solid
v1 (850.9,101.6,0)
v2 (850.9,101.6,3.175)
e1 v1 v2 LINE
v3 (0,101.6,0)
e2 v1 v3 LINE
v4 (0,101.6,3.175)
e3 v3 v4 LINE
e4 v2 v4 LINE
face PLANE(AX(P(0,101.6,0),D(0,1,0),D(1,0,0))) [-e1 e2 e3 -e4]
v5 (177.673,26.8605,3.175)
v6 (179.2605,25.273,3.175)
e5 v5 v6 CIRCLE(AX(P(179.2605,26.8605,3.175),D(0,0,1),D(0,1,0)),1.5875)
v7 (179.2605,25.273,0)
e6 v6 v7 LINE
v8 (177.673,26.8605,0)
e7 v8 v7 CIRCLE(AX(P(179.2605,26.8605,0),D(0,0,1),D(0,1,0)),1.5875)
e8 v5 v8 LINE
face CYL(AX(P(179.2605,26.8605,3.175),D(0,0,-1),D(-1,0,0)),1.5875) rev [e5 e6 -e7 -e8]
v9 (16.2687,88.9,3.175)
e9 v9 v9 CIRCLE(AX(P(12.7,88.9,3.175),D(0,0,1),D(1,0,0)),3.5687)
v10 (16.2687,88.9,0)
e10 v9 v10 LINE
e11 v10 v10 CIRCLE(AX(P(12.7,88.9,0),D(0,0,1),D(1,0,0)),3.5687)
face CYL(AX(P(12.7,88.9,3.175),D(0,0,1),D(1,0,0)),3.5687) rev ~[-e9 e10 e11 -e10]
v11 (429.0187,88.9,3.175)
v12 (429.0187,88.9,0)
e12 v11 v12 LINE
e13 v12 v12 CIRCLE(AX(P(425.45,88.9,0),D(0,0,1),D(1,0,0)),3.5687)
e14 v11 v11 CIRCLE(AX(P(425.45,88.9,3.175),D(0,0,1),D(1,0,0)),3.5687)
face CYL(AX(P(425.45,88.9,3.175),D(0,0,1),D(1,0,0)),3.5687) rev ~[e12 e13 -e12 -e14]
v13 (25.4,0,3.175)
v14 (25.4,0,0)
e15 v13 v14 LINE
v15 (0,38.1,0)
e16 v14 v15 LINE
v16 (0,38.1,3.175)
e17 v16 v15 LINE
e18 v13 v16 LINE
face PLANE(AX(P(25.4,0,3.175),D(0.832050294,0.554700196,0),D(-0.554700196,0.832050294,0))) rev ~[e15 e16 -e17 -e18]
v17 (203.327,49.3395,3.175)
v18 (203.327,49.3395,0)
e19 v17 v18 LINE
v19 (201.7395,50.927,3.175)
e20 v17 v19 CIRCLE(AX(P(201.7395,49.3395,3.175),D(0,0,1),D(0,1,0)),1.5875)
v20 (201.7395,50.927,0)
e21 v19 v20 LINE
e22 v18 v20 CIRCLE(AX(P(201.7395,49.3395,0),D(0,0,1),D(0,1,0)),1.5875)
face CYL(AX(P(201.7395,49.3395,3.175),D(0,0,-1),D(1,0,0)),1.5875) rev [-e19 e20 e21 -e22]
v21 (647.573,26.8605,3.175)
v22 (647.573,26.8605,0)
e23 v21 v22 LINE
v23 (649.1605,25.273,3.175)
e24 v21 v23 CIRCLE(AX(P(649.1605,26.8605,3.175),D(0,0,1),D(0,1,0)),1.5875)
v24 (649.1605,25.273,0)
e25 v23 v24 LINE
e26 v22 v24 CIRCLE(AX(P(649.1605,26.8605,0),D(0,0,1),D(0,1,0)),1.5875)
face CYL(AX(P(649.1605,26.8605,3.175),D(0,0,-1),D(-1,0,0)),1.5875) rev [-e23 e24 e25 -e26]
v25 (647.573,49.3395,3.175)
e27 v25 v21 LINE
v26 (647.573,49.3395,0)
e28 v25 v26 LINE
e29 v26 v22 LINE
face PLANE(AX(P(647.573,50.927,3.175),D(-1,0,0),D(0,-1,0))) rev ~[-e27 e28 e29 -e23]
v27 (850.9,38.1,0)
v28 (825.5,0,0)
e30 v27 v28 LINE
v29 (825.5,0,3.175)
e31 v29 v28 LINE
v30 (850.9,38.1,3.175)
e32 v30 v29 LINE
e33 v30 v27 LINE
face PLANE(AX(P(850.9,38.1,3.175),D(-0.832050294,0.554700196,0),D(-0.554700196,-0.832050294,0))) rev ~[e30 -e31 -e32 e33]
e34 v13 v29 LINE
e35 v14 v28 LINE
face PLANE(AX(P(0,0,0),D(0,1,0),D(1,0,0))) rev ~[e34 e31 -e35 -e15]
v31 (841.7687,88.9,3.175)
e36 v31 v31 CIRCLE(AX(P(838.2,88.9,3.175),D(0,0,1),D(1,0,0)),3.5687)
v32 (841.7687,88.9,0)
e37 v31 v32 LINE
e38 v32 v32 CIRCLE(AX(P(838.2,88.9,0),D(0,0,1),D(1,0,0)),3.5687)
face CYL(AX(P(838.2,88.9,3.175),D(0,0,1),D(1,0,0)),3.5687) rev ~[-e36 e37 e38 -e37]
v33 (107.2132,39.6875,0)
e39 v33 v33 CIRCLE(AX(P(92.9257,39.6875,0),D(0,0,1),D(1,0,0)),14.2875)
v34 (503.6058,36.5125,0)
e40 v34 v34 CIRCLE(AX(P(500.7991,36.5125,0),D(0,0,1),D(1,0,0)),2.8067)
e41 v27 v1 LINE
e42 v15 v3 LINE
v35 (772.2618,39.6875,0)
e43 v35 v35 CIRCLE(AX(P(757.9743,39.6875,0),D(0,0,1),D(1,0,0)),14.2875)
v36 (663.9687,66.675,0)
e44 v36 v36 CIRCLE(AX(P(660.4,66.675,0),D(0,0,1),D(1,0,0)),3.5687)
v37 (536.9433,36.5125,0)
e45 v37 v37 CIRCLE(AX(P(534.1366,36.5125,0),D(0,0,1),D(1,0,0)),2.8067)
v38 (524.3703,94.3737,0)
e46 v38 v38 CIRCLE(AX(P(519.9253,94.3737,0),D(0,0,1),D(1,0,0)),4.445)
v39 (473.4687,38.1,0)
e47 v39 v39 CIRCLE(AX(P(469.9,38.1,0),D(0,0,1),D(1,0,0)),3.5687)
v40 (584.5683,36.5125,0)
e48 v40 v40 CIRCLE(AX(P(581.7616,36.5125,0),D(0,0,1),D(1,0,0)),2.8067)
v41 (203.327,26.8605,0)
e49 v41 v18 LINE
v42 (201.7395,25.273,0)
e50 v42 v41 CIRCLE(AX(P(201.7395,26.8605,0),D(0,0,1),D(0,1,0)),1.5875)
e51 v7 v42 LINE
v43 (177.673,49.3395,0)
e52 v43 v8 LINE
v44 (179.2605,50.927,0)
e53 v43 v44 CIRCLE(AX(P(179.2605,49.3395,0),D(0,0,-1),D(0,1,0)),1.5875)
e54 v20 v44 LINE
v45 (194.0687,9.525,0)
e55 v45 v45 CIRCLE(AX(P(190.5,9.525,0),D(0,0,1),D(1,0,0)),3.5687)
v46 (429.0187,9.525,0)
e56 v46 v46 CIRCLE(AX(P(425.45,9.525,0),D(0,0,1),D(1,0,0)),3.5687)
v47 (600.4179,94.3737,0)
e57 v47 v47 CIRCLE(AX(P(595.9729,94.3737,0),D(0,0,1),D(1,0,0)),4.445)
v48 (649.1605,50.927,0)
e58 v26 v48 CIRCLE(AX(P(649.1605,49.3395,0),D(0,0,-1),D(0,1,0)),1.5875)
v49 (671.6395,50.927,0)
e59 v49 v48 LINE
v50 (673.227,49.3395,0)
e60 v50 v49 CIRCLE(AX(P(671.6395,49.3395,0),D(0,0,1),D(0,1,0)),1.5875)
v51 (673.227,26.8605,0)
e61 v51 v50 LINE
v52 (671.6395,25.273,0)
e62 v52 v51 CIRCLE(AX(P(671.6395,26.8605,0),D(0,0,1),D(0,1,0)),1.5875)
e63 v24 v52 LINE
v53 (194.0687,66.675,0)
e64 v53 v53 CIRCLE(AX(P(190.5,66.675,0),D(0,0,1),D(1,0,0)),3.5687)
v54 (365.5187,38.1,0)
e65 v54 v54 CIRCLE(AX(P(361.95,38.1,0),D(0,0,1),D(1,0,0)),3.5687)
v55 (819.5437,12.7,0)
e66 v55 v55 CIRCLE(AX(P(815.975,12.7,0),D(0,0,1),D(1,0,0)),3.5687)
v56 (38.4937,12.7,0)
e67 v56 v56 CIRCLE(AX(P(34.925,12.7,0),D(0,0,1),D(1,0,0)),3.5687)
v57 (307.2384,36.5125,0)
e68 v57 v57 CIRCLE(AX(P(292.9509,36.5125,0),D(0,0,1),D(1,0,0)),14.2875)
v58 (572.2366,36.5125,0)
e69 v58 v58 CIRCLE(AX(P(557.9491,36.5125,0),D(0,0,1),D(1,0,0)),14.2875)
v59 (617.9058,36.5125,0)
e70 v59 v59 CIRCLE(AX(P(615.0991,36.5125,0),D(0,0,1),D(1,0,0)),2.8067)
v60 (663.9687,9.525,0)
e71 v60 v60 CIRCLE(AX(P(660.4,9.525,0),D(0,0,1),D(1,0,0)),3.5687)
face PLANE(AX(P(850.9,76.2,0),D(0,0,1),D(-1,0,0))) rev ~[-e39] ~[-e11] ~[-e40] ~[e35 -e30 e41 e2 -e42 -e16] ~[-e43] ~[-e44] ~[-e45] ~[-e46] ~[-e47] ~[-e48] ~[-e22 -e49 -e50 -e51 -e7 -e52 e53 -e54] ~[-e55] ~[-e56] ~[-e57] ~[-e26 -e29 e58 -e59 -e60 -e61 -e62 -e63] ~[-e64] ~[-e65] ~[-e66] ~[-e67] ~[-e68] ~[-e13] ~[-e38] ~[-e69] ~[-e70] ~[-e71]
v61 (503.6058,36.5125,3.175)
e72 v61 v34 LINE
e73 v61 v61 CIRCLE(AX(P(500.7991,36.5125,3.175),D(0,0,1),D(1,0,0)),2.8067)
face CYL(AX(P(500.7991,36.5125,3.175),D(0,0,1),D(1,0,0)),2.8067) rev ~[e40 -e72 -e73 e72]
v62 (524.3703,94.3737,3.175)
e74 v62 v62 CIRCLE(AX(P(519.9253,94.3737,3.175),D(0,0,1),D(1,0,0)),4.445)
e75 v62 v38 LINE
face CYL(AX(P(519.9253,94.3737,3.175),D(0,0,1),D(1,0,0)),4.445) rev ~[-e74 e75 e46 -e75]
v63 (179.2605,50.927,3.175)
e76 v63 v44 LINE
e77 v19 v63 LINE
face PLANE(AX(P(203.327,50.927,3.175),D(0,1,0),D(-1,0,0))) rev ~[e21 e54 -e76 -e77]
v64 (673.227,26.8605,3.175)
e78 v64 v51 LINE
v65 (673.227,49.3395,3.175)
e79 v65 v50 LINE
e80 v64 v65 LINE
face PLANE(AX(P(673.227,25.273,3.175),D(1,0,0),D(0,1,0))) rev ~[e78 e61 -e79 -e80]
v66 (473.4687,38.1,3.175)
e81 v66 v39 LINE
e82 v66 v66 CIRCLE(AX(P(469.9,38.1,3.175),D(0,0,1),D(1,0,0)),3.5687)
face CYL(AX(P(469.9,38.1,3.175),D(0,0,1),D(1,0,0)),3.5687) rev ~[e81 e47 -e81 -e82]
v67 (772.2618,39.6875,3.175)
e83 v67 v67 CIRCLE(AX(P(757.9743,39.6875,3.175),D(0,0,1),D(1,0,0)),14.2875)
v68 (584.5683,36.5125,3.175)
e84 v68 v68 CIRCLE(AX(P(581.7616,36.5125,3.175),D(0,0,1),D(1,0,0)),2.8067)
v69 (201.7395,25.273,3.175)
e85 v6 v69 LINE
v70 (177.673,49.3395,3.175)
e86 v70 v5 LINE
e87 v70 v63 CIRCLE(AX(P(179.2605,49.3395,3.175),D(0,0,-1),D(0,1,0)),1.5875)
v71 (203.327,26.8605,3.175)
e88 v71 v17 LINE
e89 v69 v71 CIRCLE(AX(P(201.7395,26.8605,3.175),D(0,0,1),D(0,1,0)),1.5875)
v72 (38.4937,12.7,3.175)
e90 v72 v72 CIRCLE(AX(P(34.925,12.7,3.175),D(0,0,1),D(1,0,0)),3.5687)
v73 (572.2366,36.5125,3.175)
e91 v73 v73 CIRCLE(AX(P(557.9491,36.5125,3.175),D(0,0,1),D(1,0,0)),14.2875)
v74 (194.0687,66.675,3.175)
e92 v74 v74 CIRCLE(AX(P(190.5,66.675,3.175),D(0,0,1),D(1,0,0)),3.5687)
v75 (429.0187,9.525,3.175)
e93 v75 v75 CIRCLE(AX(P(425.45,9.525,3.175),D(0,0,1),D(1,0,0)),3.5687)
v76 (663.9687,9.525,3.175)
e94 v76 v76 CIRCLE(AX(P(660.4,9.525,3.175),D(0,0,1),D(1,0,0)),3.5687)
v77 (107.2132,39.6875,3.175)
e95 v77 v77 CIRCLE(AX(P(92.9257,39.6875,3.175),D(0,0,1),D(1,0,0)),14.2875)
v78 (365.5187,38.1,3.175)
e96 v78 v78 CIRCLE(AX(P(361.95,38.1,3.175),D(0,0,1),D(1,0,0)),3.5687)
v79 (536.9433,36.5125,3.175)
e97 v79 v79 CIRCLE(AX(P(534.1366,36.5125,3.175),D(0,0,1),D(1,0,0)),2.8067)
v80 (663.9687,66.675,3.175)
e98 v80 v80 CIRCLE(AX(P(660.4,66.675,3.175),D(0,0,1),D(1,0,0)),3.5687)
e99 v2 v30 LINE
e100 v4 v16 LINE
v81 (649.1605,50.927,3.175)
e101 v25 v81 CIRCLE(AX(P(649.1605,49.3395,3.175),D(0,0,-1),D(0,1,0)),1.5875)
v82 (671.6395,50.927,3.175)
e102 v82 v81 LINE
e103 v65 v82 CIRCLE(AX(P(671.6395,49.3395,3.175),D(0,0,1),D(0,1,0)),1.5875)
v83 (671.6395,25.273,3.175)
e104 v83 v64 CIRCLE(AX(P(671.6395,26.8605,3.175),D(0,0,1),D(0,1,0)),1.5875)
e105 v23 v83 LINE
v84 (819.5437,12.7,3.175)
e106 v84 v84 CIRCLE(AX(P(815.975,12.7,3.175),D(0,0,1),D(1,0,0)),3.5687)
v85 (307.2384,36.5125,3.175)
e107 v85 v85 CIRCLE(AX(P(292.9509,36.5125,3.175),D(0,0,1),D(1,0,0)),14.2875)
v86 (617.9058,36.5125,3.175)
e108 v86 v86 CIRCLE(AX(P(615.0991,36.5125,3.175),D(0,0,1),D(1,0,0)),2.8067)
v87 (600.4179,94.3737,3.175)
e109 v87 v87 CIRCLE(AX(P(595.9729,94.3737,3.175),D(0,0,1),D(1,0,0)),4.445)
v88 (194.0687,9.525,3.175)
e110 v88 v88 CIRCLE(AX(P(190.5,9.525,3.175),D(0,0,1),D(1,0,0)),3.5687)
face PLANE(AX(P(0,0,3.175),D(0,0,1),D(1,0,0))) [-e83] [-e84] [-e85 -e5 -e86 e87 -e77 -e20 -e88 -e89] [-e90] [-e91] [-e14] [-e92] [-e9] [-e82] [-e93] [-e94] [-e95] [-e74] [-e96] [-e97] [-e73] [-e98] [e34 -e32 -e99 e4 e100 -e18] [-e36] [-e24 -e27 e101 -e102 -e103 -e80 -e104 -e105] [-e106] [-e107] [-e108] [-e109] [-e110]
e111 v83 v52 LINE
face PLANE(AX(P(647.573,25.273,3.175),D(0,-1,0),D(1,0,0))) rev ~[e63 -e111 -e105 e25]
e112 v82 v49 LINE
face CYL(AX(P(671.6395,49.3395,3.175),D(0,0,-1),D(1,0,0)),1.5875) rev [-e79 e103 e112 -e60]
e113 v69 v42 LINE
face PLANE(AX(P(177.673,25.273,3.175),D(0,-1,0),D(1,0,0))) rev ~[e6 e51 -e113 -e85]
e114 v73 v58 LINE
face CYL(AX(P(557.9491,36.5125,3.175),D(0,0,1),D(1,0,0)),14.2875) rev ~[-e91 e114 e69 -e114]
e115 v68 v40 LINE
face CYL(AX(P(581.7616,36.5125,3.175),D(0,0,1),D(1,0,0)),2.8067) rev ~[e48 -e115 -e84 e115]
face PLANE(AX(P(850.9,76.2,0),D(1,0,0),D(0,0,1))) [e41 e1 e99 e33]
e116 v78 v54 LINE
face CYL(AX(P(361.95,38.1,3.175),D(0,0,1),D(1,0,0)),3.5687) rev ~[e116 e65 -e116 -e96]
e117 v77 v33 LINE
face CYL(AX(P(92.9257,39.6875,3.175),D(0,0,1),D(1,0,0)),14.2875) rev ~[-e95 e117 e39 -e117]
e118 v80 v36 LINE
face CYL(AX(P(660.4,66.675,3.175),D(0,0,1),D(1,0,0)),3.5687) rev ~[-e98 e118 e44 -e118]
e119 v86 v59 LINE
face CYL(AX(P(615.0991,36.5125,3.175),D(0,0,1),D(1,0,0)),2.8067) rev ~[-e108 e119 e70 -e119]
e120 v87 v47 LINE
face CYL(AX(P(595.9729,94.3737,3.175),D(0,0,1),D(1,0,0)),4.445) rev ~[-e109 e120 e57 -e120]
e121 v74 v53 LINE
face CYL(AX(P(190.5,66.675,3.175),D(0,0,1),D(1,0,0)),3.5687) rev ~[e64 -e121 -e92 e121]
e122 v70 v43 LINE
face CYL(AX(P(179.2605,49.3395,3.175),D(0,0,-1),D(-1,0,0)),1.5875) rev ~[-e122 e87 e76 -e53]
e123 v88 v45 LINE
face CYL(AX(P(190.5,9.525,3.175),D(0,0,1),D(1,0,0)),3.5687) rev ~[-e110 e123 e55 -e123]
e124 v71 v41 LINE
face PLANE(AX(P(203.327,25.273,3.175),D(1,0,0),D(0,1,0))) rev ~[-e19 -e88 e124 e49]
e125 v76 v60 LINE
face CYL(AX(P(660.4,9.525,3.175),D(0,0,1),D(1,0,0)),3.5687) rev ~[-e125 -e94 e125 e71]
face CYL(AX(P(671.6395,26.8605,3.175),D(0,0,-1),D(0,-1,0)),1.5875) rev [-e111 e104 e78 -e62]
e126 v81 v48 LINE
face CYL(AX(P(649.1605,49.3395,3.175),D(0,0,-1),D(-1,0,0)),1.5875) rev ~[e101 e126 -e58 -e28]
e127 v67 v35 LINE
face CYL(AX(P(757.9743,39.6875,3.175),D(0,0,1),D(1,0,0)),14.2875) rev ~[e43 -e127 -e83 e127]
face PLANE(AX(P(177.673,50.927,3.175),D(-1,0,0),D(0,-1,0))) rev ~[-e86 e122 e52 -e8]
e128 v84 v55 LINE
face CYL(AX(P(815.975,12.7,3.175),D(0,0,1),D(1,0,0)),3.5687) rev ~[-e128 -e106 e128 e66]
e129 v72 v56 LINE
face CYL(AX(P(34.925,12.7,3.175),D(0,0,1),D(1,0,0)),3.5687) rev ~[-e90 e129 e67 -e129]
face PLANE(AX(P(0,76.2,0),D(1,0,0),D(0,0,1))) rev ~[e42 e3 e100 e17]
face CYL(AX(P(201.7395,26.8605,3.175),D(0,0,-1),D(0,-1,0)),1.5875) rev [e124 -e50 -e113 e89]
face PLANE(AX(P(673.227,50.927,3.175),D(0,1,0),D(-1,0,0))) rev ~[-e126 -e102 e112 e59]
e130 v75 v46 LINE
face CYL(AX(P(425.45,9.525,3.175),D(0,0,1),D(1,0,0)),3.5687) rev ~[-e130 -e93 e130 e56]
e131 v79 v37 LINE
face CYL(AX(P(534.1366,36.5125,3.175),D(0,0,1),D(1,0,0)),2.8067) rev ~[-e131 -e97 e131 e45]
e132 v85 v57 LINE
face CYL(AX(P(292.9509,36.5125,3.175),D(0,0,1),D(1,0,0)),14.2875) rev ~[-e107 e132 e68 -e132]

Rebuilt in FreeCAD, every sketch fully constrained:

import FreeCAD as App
import Part
import Sketcher
from FreeCAD import Vector
Q = App.Units.Quantity


def edges_at(feature, points):
    """Names of the edges that pass closest to the given points."""
    edges = feature.Shape.Edges
    near = lambda p: min(range(len(edges)), key=lambda i: edges[i].distToShape(Part.Vertex(*p))[0])
    return sorted({f"Edge{near(p) + 1}" for p in points})


def add_polygon(sketch, points):
    """Adds a closed chain of lines whose ends are joined by coincident constraints."""
    first, n = sketch.GeometryCount, len(points)
    for a, b in zip(points, points[1:] + points[:1]):
        sketch.addGeometry(Part.LineSegment(App.Vector(*a, 0), App.Vector(*b, 0)), False)
    for i in range(n):
        sketch.addConstraint(Sketcher.Constraint("Coincident", first + i, 2, first + (i + 1) % n, 1))

doc = App.newDocument("Part")
body = doc.addObject("PartDesign::Body", "Body")

# Sketch on XY plane
sketch1 = body.newObject("Sketcher::SketchObject", "Sketch")
sketch1.AttachmentSupport = (doc.getObject("XY_Plane"), [""])
sketch1.MapMode = "FlatFace"
add_polygon(sketch1, [(0, 76), (0, 0), (851, 0), (851, 76)])  # lines 0-3
sketch1.addConstraint(Sketcher.Constraint("Vertical", 0))
sketch1.addConstraint(Sketcher.Constraint("Horizontal", 1))
sketch1.addConstraint(Sketcher.Constraint("Vertical", 2))
sketch1.addConstraint(Sketcher.Constraint("Horizontal", 3))
sketch1.addConstraint(Sketcher.Constraint("Coincident", 0, 2, -1, 1))
sketch1.addConstraint(Sketcher.Constraint("DistanceY", 0, 2, 0, 1, Q("3 in")))
sketch1.addConstraint(Sketcher.Constraint("DistanceX", 1, 1, 1, 2, Q("33.5 in")))
pad1 = body.newObject("PartDesign::Pad", "Pad")
pad1.Profile = sketch1
pad1.Length = Q("0.125 in")

# Sketch on XY plane
sketch2 = body.newObject("Sketcher::SketchObject", "Sketch001")
sketch2.AttachmentSupport = (doc.getObject("XY_Plane"), [""])
sketch2.MapMode = "FlatFace"
sketch2.AttachmentOffset = App.Placement(Vector(0, 0, 0.125 * 25.4), App.Rotation())
add_polygon(sketch2, [(851, 38), (826, 0), (851, 0)])  # lines 0-2
add_polygon(sketch2, [(0, 38), (0, 0), (25, 0)])  # lines 3-5
sketch2.addGeometry(Part.Circle(Vector(293, 37, 0), Vector(0, 0, 1), 14), False)  # 6
sketch2.addGeometry(Part.Circle(Vector(558, 37, 0), Vector(0, 0, 1), 14), False)  # 7
sketch2.addGeometry(Part.Circle(Vector(758, 40, 0), Vector(0, 0, 1), 14), False)  # 8
sketch2.addGeometry(Part.Circle(Vector(93, 40, 0), Vector(0, 0, 1), 14), False)  # 9
sketch2.addConstraint(Sketcher.Constraint("Horizontal", 1))
sketch2.addConstraint(Sketcher.Constraint("Vertical", 2))
sketch2.addConstraint(Sketcher.Constraint("Vertical", 3))
sketch2.addConstraint(Sketcher.Constraint("Horizontal", 4))
sketch2.addConstraint(Sketcher.Constraint("Coincident", 3, 2, -1, 1))
sketch2.addConstraint(Sketcher.Constraint("Equal", 6, 7))
sketch2.addConstraint(Sketcher.Constraint("Equal", 7, 8))
sketch2.addConstraint(Sketcher.Constraint("Equal", 8, 9))
sketch2.addConstraint(Sketcher.Constraint("PointOnObject", 0, 2, -1))
sketch2.addConstraint(Sketcher.Constraint("Horizontal", 6, 3, 7, 3))
sketch2.addConstraint(Sketcher.Constraint("Horizontal", 8, 3, 9, 3))
sketch2.addConstraint(Sketcher.Constraint("Horizontal", 2, 2, 5, 2))
sketch2.addConstraint(Sketcher.Constraint("Equal", 1, 4))
sketch2.addConstraint(Sketcher.Constraint("DistanceX", 1, 1, 1, 2, Q("1 in")))
sketch2.addConstraint(Sketcher.Constraint("Diameter", 6, Q("1.125 in")))
sketch2.addConstraint(Sketcher.Constraint("DistanceY", 2, 1, 2, 2, Q("1.5 in")))
sketch2.addConstraint(Sketcher.Constraint("DistanceX", -1, 1, 0, 2, Q("32.5 in")))
sketch2.addConstraint(Sketcher.Constraint("DistanceY", -1, 1, 6, 3, Q("1.4375 in")))
sketch2.addConstraint(Sketcher.Constraint("DistanceY", -1, 1, 8, 3, Q("1.5625 in")))
sketch2.addConstraint(Sketcher.Constraint("DistanceX", 6, 3, 7, 3, Q("10.433 in")))
sketch2.addConstraint(Sketcher.Constraint("DistanceX", 7, 3, 8, 3, Q("7.875 in")))
sketch2.addConstraint(Sketcher.Constraint("DistanceX", 9, 3, 6, 3, Q("7.875 in")))
sketch2.addConstraint(Sketcher.Constraint("DistanceX", -1, 1, 6, 3, Q("11.5335 in")))
pocket1 = body.newObject("PartDesign::Pocket", "Pocket")
pocket1.Profile = sketch2
pocket1.Length = Q("0.125 in")

# Sketch on XY plane
sketch3 = body.newObject("Sketcher::SketchObject", "Sketch002")
sketch3.AttachmentSupport = (doc.getObject("XY_Plane"), [""])
sketch3.MapMode = "FlatFace"
sketch3.AttachmentOffset = App.Placement(Vector(0, 0, 0.125 * 25.4), App.Rotation())
sketch3.addGeometry(Part.Circle(Vector(425.4, 66.7, 0), Vector(0, 0, 1), 3.6), False)
sketch3.addGeometry(Part.Circle(Vector(425.4, 9.5, 0), Vector(0, 0, 1), 3.6), False)
sketch3.addGeometry(Part.Circle(Vector(190.5, 66.7, 0), Vector(0, 0, 1), 3.6), False)
sketch3.addGeometry(Part.Circle(Vector(190.5, 9.5, 0), Vector(0, 0, 1), 3.6), False)
sketch3.addGeometry(Part.Circle(Vector(190.5, 38.1, 0), Vector(0, 0, 1), 3.6), False)
sketch3.addGeometry(Part.Circle(Vector(660.4, 66.7, 0), Vector(0, 0, 1), 3.6), False)
sketch3.addGeometry(Part.Circle(Vector(660.4, 9.5, 0), Vector(0, 0, 1), 3.6), False)
sketch3.addGeometry(Part.Circle(Vector(660.4, 38.1, 0), Vector(0, 0, 1), 3.6), False)
sketch3.addGeometry(Part.Circle(Vector(838.2, 63.5, 0), Vector(0, 0, 1), 3.6), False)
sketch3.addGeometry(Part.Circle(Vector(12.7, 63.5, 0), Vector(0, 0, 1), 3.6), False)
sketch3.addGeometry(Part.Circle(Vector(34.9, 12.7, 0), Vector(0, 0, 1), 3.6), False)
sketch3.addGeometry(Part.Circle(Vector(816, 12.7, 0), Vector(0, 0, 1), 3.6), False)
sketch3.addConstraint(Sketcher.Constraint("Equal", 0, 1))
sketch3.addConstraint(Sketcher.Constraint("Equal", 1, 2))
sketch3.addConstraint(Sketcher.Constraint("Equal", 2, 3))
sketch3.addConstraint(Sketcher.Constraint("Equal", 3, 4))
sketch3.addConstraint(Sketcher.Constraint("Equal", 4, 5))
sketch3.addConstraint(Sketcher.Constraint("Equal", 5, 6))
sketch3.addConstraint(Sketcher.Constraint("Equal", 6, 7))
sketch3.addConstraint(Sketcher.Constraint("Equal", 7, 8))
sketch3.addConstraint(Sketcher.Constraint("Equal", 8, 9))
sketch3.addConstraint(Sketcher.Constraint("Equal", 9, 10))
sketch3.addConstraint(Sketcher.Constraint("Equal", 10, 11))
sketch3.addConstraint(Sketcher.Constraint("Horizontal", 0, 3, 2, 3))
sketch3.addConstraint(Sketcher.Constraint("Horizontal", 1, 3, 3, 3))
sketch3.addConstraint(Sketcher.Constraint("Horizontal", 2, 3, 5, 3))
sketch3.addConstraint(Sketcher.Constraint("Horizontal", 3, 3, 6, 3))
sketch3.addConstraint(Sketcher.Constraint("Horizontal", 4, 3, 7, 3))
sketch3.addConstraint(Sketcher.Constraint("Horizontal", 8, 3, 9, 3))
sketch3.addConstraint(Sketcher.Constraint("Horizontal", 10, 3, 11, 3))
sketch3.addConstraint(Sketcher.Constraint("Vertical", 0, 3, 1, 3))
sketch3.addConstraint(Sketcher.Constraint("Vertical", 2, 3, 3, 3))
sketch3.addConstraint(Sketcher.Constraint("Vertical", 3, 3, 4, 3))
sketch3.addConstraint(Sketcher.Constraint("Vertical", 5, 3, 6, 3))
sketch3.addConstraint(Sketcher.Constraint("Vertical", 6, 3, 7, 3))
sketch3.addConstraint(Sketcher.Constraint("Diameter", 0, Q("0.281 in")))
sketch3.addConstraint(Sketcher.Constraint("DistanceX", -1, 1, 2, 3, Q("7.5 in")))
sketch3.addConstraint(Sketcher.Constraint("DistanceY", -1, 1, 4, 3, Q("1.5 in")))
sketch3.addConstraint(Sketcher.Constraint("DistanceX", -1, 1, 9, 3, Q("0.5 in")))
sketch3.addConstraint(Sketcher.Constraint("DistanceY", -1, 1, 10, 3, Q("0.5 in")))
sketch3.addConstraint(Sketcher.Constraint("DistanceX", -1, 1, 0, 3, Q("16.75 in")))
sketch3.addConstraint(Sketcher.Constraint("DistanceY", -1, 1, 1, 3, Q("0.375 in")))
sketch3.addConstraint(Sketcher.Constraint("DistanceX", -1, 1, 5, 3, Q("26 in")))
sketch3.addConstraint(Sketcher.Constraint("DistanceX", -1, 1, 8, 3, Q("33 in")))
sketch3.addConstraint(Sketcher.Constraint("DistanceY", 7, 3, 8, 3, Q("1 in")))
sketch3.addConstraint(Sketcher.Constraint("DistanceY", 1, 3, 0, 3, Q("2.25 in")))
sketch3.addConstraint(Sketcher.Constraint("DistanceX", -1, 1, 10, 3, Q("1.375 in")))
sketch3.addConstraint(Sketcher.Constraint("DistanceX", -1, 1, 11, 3, Q("32.125 in")))
pocket2 = body.newObject("PartDesign::Pocket", "Pocket001")
pocket2.Profile = sketch3
pocket2.Length = Q("0.125 in")

# Sketch on XY plane
sketch4 = body.newObject("Sketcher::SketchObject", "Sketch003")
sketch4.AttachmentSupport = (doc.getObject("XY_Plane"), [""])
sketch4.MapMode = "FlatFace"
sketch4.AttachmentOffset = App.Placement(Vector(0, 0, 0.125 * 25.4), App.Rotation())
add_polygon(sketch4, [(177.7, 50.9), (177.7, 25.3), (203.3, 25.3), (203.3, 50.9)])  # lines 0-3
sketch4.addGeometry(Part.Circle(Vector(190.5, 38.1, 0), Vector(0, 0, 1), 3.6), False)  # 4
add_polygon(sketch4, [(647.6, 50.9), (647.6, 25.3), (673.2, 25.3), (673.2, 50.9)])  # lines 5-8
sketch4.addGeometry(Part.Circle(Vector(660.4, 38.1, 0), Vector(0, 0, 1), 3.6), False)  # 9
sketch4.addConstraint(Sketcher.Constraint("Vertical", 0))
sketch4.addConstraint(Sketcher.Constraint("Horizontal", 1))
sketch4.addConstraint(Sketcher.Constraint("Vertical", 2))
sketch4.addConstraint(Sketcher.Constraint("Horizontal", 3))
sketch4.addConstraint(Sketcher.Constraint("Vertical", 5))
sketch4.addConstraint(Sketcher.Constraint("Horizontal", 6))
sketch4.addConstraint(Sketcher.Constraint("Vertical", 7))
sketch4.addConstraint(Sketcher.Constraint("Horizontal", 8))
sketch4.addConstraint(Sketcher.Constraint("Equal", 4, 9))
sketch4.addConstraint(Sketcher.Constraint("Horizontal", 4, 3, 9, 3))
sketch4.addConstraint(Sketcher.Constraint("Horizontal", 1, 2, 5, 2))
sketch4.addConstraint(Sketcher.Constraint("Horizontal", 3, 2, 7, 2))
sketch4.addConstraint(Sketcher.Constraint("Equal", 3, 6))
sketch4.addConstraint(Sketcher.Constraint("Equal", 8, 0))
sketch4.addConstraint(Sketcher.Constraint("DistanceX", 1, 1, 1, 2, Q("1.01 in")))
sketch4.addConstraint(Sketcher.Constraint("Diameter", 4, Q("0.281 in")))
sketch4.addConstraint(Sketcher.Constraint("DistanceX", -1, 1, 9, 3, Q("26 in")))
sketch4.addConstraint(Sketcher.Constraint("DistanceX", -1, 1, 4, 3, Q("7.5 in")))
sketch4.addConstraint(Sketcher.Constraint("DistanceY", -1, 1, 4, 3, Q("1.5 in")))
sketch4.addConstraint(Sketcher.Constraint("DistanceX", 0, 2, 5, 2, Q("18.5 in")))
sketch4.addConstraint(Sketcher.Constraint("DistanceX", -1, 1, 0, 2, Q("6.995 in")))
sketch4.addConstraint(Sketcher.Constraint("DistanceY", -1, 1, 0, 2, Q("0.995 in")))
pocket3 = body.newObject("PartDesign::Pocket", "Pocket002")
pocket3.Profile = sketch4
pocket3.Length = Q("0.125 in")
doc.recompute()

fillet = body.newObject("PartDesign::Fillet", "Fillet")
fillet.Base = (pocket3, edges_at(pocket3, [
    (177.673, 25.273, 1.587),
    (203.327, 25.273, 1.587),
    (203.327, 50.927, 1.587),
    (177.673, 50.927, 1.587),
    (647.573, 50.927, 1.587),
    (647.573, 25.273, 1.587),
    (673.227, 50.927, 1.587),
    (673.227, 25.273, 1.587),
]))
fillet.Radius = Q("0.0625 in")

# Sketch on XY plane
sketch5 = body.newObject("Sketcher::SketchObject", "Sketch004")
sketch5.AttachmentSupport = (doc.getObject("XY_Plane"), [""])
sketch5.MapMode = "FlatFace"
sketch5.AttachmentOffset = App.Placement(Vector(0, 0, 0.125 * 25.4), App.Rotation())
sketch5.addGeometry(Part.Circle(Vector(534.1, 36.5, 0), Vector(0, 0, 1), 2.8), False)
sketch5.addGeometry(Part.Circle(Vector(581.8, 36.5, 0), Vector(0, 0, 1), 2.8), False)
sketch5.addGeometry(Part.Circle(Vector(615.1, 36.5, 0), Vector(0, 0, 1), 2.8), False)
sketch5.addGeometry(Part.Circle(Vector(499.8, 36.5, 0), Vector(0, 0, 1), 2.8), False)
sketch5.addConstraint(Sketcher.Constraint("Equal", 0, 1))
sketch5.addConstraint(Sketcher.Constraint("Equal", 1, 2))
sketch5.addConstraint(Sketcher.Constraint("Equal", 2, 3))
sketch5.addConstraint(Sketcher.Constraint("Horizontal", 0, 3, 1, 3))
sketch5.addConstraint(Sketcher.Constraint("Horizontal", 1, 3, 2, 3))
sketch5.addConstraint(Sketcher.Constraint("Horizontal", 2, 3, 3, 3))
sketch5.addConstraint(Sketcher.Constraint("Diameter", 0, Q("0.221 in")))
sketch5.addConstraint(Sketcher.Constraint("DistanceX", -1, 1, 0, 3, Q("21.029 in")))
sketch5.addConstraint(Sketcher.Constraint("DistanceY", -1, 1, 0, 3, Q("1.4375 in")))
sketch5.addConstraint(Sketcher.Constraint("DistanceX", -1, 1, 1, 3, Q("22.904 in")))
sketch5.addConstraint(Sketcher.Constraint("DistanceX", 1, 3, 2, 3, Q("1.3125 in")))
sketch5.addConstraint(Sketcher.Constraint("DistanceX", -1, 1, 3, 3, Q("19.6784 in")))
pocket4 = body.newObject("PartDesign::Pocket", "Pocket003")
pocket4.Profile = sketch5
pocket4.Length = Q("1 in")

# Sketch on XY plane
sketch6 = body.newObject("Sketcher::SketchObject", "Sketch005")
sketch6.AttachmentSupport = (doc.getObject("XY_Plane"), [""])
sketch6.MapMode = "FlatFace"
sketch6.AttachmentOffset = App.Placement(Vector(0, 0, 0.125 * 25.4), App.Rotation())
sketch6.addGeometry(Part.Circle(Vector(361.9, 38.1, 0), Vector(0, 0, 1), 3.6), False)
sketch6.addGeometry(Part.Circle(Vector(469.9, 38.1, 0), Vector(0, 0, 1), 3.6), False)
sketch6.addConstraint(Sketcher.Constraint("Equal", 0, 1))
sketch6.addConstraint(Sketcher.Constraint("Horizontal", 0, 3, 1, 3))
sketch6.addConstraint(Sketcher.Constraint("Diameter", 0, Q("0.281 in")))
sketch6.addConstraint(Sketcher.Constraint("DistanceY", -1, 1, 0, 3, Q("1.5 in")))
sketch6.addConstraint(Sketcher.Constraint("DistanceX", -1, 1, 0, 3, Q("14.25 in")))
sketch6.addConstraint(Sketcher.Constraint("DistanceX", -1, 1, 1, 3, Q("18.5 in")))
pocket5 = body.newObject("PartDesign::Pocket", "Pocket004")
pocket5.Profile = sketch6
pocket5.Length = Q("1 in")

# Sketch on XZ plane
sketch7 = body.newObject("Sketcher::SketchObject", "Sketch006")
sketch7.AttachmentSupport = (doc.getObject("XZ_Plane"), [""])
sketch7.MapMode = "FlatFace"
sketch7.AttachmentOffset = App.Placement(Vector(0, 0, -3 * 25.4), App.Rotation())
add_polygon(sketch7, [(850.9, 3.2), (850.9, 0), (0, 0), (0, 3.2)])  # lines 0-3
sketch7.addConstraint(Sketcher.Constraint("Vertical", 0))
sketch7.addConstraint(Sketcher.Constraint("Horizontal", 1))
sketch7.addConstraint(Sketcher.Constraint("Vertical", 2))
sketch7.addConstraint(Sketcher.Constraint("Horizontal", 3))
sketch7.addConstraint(Sketcher.Constraint("Coincident", 1, 2, -1, 1))
sketch7.addConstraint(Sketcher.Constraint("DistanceX", 1, 2, 1, 1, Q("33.5 in")))
sketch7.addConstraint(Sketcher.Constraint("DistanceY", 0, 2, 0, 1, Q("0.125 in")))
pad2 = body.newObject("PartDesign::Pad", "Pad001")
pad2.Profile = sketch7
pad2.Length = Q("1 in")
pad2.Reversed = True

# Sketch on XY plane
sketch8 = body.newObject("Sketcher::SketchObject", "Sketch007")
sketch8.AttachmentSupport = (doc.getObject("XY_Plane"), [""])
sketch8.MapMode = "FlatFace"
sketch8.AttachmentOffset = App.Placement(Vector(0, 0, 0.125 * 25.4), App.Rotation())
sketch8.addGeometry(Part.Circle(Vector(12.7, 63.5, 0), Vector(0, 0, 1), 3.6), False)
sketch8.addGeometry(Part.Circle(Vector(838.2, 63.5, 0), Vector(0, 0, 1), 3.6), False)
sketch8.addGeometry(Part.Circle(Vector(425.4, 66.7, 0), Vector(0, 0, 1), 3.6), False)
sketch8.addConstraint(Sketcher.Constraint("Equal", 0, 1))
sketch8.addConstraint(Sketcher.Constraint("Equal", 1, 2))
sketch8.addConstraint(Sketcher.Constraint("Horizontal", 0, 3, 1, 3))
sketch8.addConstraint(Sketcher.Constraint("Diameter", 0, Q("0.281 in")))
sketch8.addConstraint(Sketcher.Constraint("DistanceX", -1, 1, 1, 3, Q("33 in")))
sketch8.addConstraint(Sketcher.Constraint("DistanceX", -1, 1, 0, 3, Q("0.5 in")))
sketch8.addConstraint(Sketcher.Constraint("DistanceY", -1, 1, 0, 3, Q("2.5 in")))
sketch8.addConstraint(Sketcher.Constraint("DistanceX", -1, 1, 2, 3, Q("16.75 in")))
sketch8.addConstraint(Sketcher.Constraint("DistanceY", -1, 1, 2, 3, Q("2.625 in")))
pad3 = body.newObject("PartDesign::Pad", "Pad002")
pad3.Profile = sketch8
pad3.Length = Q("0.125 in")
pad3.Reversed = True

# Sketch on XY plane
sketch9 = body.newObject("Sketcher::SketchObject", "Sketch008")
sketch9.AttachmentSupport = (doc.getObject("XY_Plane"), [""])
sketch9.MapMode = "FlatFace"
sketch9.AttachmentOffset = App.Placement(Vector(0, 0, 0.125 * 25.4), App.Rotation())
sketch9.addGeometry(Part.Circle(Vector(12.7, 88.9, 0), Vector(0, 0, 1), 3.6), False)
sketch9.addGeometry(Part.Circle(Vector(425.4, 88.9, 0), Vector(0, 0, 1), 3.6), False)
sketch9.addGeometry(Part.Circle(Vector(838.2, 88.9, 0), Vector(0, 0, 1), 3.6), False)
sketch9.addConstraint(Sketcher.Constraint("Equal", 0, 1))
sketch9.addConstraint(Sketcher.Constraint("Equal", 1, 2))
sketch9.addConstraint(Sketcher.Constraint("Horizontal", 0, 3, 1, 3))
sketch9.addConstraint(Sketcher.Constraint("Horizontal", 1, 3, 2, 3))
sketch9.addConstraint(Sketcher.Constraint("Diameter", 0, Q("0.281 in")))
sketch9.addConstraint(Sketcher.Constraint("DistanceX", -1, 1, 0, 3, Q("0.5 in")))
sketch9.addConstraint(Sketcher.Constraint("DistanceX", -1, 1, 1, 3, Q("16.75 in")))
sketch9.addConstraint(Sketcher.Constraint("DistanceX", -1, 1, 2, 3, Q("33 in")))
sketch9.addConstraint(Sketcher.Constraint("DistanceY", -1, 1, 0, 3, Q("3.5 in")))
pocket6 = body.newObject("PartDesign::Pocket", "Pocket005")
pocket6.Profile = sketch9
pocket6.Length = Q("0.125 in")

# Sketch on XY plane
sketch10 = body.newObject("Sketcher::SketchObject", "Sketch009")
sketch10.AttachmentSupport = (doc.getObject("XY_Plane"), [""])
sketch10.MapMode = "FlatFace"
sketch10.AttachmentOffset = App.Placement(Vector(0, 0, 0.125 * 25.4), App.Rotation())
sketch10.addGeometry(Part.Circle(Vector(499.8, 36.5, 0), Vector(0, 0, 1), 2.8), False)
sketch10.addConstraint(Sketcher.Constraint("Diameter", 0, Q("0.221 in")))
sketch10.addConstraint(Sketcher.Constraint("DistanceY", -1, 1, 0, 3, Q("1.4375 in")))
sketch10.addConstraint(Sketcher.Constraint("DistanceX", -1, 1, 0, 3, Q("19.6784 in")))
pad4 = body.newObject("PartDesign::Pad", "Pad003")
pad4.Profile = sketch10
pad4.Length = Q("0.125 in")
pad4.Reversed = True

# Sketch on XY plane
sketch11 = body.newObject("Sketcher::SketchObject", "Sketch010")
sketch11.AttachmentSupport = (doc.getObject("XY_Plane"), [""])
sketch11.MapMode = "FlatFace"
sketch11.AttachmentOffset = App.Placement(Vector(0, 0, 0.125 * 25.4), App.Rotation())
sketch11.addGeometry(Part.Circle(Vector(500.8, 36.5, 0), Vector(0, 0, 1), 2.8), False)
sketch11.addConstraint(Sketcher.Constraint("Diameter", 0, Q("0.221 in")))
sketch11.addConstraint(Sketcher.Constraint("DistanceY", -1, 1, 0, 3, Q("1.4375 in")))
sketch11.addConstraint(Sketcher.Constraint("DistanceX", -1, 1, 0, 3, Q("19.7165 in")))
pocket7 = body.newObject("PartDesign::Pocket", "Pocket006")
pocket7.Profile = sketch11
pocket7.Length = Q("0.125 in")

# Sketch on XY plane
sketch12 = body.newObject("Sketcher::SketchObject", "Sketch011")
sketch12.AttachmentSupport = (doc.getObject("XY_Plane"), [""])
sketch12.MapMode = "FlatFace"
sketch12.AttachmentOffset = App.Placement(Vector(0, 0, 0.125 * 25.4), App.Rotation())
sketch12.addGeometry(Part.Circle(Vector(519.9, 94.4, 0), Vector(0, 0, 1), 4.4), False)
sketch12.addGeometry(Part.Circle(Vector(596, 94.4, 0), Vector(0, 0, 1), 4.4), False)
sketch12.addConstraint(Sketcher.Constraint("Equal", 0, 1))
sketch12.addConstraint(Sketcher.Constraint("Horizontal", 0, 3, 1, 3))
sketch12.addConstraint(Sketcher.Constraint("Diameter", 0, Q("0.35 in")))
sketch12.addConstraint(Sketcher.Constraint("DistanceX", 0, 3, 1, 3, Q("2.994 in")))
sketch12.addConstraint(Sketcher.Constraint("DistanceX", -1, 1, 0, 3, Q("20.4695 in")))
sketch12.addConstraint(Sketcher.Constraint("DistanceY", -1, 1, 0, 3, Q("3.7155 in")))
pocket8 = body.newObject("PartDesign::Pocket", "Pocket007")
pocket8.Profile = sketch12
pocket8.Length = Q("0.125 in")

doc.recompute()
